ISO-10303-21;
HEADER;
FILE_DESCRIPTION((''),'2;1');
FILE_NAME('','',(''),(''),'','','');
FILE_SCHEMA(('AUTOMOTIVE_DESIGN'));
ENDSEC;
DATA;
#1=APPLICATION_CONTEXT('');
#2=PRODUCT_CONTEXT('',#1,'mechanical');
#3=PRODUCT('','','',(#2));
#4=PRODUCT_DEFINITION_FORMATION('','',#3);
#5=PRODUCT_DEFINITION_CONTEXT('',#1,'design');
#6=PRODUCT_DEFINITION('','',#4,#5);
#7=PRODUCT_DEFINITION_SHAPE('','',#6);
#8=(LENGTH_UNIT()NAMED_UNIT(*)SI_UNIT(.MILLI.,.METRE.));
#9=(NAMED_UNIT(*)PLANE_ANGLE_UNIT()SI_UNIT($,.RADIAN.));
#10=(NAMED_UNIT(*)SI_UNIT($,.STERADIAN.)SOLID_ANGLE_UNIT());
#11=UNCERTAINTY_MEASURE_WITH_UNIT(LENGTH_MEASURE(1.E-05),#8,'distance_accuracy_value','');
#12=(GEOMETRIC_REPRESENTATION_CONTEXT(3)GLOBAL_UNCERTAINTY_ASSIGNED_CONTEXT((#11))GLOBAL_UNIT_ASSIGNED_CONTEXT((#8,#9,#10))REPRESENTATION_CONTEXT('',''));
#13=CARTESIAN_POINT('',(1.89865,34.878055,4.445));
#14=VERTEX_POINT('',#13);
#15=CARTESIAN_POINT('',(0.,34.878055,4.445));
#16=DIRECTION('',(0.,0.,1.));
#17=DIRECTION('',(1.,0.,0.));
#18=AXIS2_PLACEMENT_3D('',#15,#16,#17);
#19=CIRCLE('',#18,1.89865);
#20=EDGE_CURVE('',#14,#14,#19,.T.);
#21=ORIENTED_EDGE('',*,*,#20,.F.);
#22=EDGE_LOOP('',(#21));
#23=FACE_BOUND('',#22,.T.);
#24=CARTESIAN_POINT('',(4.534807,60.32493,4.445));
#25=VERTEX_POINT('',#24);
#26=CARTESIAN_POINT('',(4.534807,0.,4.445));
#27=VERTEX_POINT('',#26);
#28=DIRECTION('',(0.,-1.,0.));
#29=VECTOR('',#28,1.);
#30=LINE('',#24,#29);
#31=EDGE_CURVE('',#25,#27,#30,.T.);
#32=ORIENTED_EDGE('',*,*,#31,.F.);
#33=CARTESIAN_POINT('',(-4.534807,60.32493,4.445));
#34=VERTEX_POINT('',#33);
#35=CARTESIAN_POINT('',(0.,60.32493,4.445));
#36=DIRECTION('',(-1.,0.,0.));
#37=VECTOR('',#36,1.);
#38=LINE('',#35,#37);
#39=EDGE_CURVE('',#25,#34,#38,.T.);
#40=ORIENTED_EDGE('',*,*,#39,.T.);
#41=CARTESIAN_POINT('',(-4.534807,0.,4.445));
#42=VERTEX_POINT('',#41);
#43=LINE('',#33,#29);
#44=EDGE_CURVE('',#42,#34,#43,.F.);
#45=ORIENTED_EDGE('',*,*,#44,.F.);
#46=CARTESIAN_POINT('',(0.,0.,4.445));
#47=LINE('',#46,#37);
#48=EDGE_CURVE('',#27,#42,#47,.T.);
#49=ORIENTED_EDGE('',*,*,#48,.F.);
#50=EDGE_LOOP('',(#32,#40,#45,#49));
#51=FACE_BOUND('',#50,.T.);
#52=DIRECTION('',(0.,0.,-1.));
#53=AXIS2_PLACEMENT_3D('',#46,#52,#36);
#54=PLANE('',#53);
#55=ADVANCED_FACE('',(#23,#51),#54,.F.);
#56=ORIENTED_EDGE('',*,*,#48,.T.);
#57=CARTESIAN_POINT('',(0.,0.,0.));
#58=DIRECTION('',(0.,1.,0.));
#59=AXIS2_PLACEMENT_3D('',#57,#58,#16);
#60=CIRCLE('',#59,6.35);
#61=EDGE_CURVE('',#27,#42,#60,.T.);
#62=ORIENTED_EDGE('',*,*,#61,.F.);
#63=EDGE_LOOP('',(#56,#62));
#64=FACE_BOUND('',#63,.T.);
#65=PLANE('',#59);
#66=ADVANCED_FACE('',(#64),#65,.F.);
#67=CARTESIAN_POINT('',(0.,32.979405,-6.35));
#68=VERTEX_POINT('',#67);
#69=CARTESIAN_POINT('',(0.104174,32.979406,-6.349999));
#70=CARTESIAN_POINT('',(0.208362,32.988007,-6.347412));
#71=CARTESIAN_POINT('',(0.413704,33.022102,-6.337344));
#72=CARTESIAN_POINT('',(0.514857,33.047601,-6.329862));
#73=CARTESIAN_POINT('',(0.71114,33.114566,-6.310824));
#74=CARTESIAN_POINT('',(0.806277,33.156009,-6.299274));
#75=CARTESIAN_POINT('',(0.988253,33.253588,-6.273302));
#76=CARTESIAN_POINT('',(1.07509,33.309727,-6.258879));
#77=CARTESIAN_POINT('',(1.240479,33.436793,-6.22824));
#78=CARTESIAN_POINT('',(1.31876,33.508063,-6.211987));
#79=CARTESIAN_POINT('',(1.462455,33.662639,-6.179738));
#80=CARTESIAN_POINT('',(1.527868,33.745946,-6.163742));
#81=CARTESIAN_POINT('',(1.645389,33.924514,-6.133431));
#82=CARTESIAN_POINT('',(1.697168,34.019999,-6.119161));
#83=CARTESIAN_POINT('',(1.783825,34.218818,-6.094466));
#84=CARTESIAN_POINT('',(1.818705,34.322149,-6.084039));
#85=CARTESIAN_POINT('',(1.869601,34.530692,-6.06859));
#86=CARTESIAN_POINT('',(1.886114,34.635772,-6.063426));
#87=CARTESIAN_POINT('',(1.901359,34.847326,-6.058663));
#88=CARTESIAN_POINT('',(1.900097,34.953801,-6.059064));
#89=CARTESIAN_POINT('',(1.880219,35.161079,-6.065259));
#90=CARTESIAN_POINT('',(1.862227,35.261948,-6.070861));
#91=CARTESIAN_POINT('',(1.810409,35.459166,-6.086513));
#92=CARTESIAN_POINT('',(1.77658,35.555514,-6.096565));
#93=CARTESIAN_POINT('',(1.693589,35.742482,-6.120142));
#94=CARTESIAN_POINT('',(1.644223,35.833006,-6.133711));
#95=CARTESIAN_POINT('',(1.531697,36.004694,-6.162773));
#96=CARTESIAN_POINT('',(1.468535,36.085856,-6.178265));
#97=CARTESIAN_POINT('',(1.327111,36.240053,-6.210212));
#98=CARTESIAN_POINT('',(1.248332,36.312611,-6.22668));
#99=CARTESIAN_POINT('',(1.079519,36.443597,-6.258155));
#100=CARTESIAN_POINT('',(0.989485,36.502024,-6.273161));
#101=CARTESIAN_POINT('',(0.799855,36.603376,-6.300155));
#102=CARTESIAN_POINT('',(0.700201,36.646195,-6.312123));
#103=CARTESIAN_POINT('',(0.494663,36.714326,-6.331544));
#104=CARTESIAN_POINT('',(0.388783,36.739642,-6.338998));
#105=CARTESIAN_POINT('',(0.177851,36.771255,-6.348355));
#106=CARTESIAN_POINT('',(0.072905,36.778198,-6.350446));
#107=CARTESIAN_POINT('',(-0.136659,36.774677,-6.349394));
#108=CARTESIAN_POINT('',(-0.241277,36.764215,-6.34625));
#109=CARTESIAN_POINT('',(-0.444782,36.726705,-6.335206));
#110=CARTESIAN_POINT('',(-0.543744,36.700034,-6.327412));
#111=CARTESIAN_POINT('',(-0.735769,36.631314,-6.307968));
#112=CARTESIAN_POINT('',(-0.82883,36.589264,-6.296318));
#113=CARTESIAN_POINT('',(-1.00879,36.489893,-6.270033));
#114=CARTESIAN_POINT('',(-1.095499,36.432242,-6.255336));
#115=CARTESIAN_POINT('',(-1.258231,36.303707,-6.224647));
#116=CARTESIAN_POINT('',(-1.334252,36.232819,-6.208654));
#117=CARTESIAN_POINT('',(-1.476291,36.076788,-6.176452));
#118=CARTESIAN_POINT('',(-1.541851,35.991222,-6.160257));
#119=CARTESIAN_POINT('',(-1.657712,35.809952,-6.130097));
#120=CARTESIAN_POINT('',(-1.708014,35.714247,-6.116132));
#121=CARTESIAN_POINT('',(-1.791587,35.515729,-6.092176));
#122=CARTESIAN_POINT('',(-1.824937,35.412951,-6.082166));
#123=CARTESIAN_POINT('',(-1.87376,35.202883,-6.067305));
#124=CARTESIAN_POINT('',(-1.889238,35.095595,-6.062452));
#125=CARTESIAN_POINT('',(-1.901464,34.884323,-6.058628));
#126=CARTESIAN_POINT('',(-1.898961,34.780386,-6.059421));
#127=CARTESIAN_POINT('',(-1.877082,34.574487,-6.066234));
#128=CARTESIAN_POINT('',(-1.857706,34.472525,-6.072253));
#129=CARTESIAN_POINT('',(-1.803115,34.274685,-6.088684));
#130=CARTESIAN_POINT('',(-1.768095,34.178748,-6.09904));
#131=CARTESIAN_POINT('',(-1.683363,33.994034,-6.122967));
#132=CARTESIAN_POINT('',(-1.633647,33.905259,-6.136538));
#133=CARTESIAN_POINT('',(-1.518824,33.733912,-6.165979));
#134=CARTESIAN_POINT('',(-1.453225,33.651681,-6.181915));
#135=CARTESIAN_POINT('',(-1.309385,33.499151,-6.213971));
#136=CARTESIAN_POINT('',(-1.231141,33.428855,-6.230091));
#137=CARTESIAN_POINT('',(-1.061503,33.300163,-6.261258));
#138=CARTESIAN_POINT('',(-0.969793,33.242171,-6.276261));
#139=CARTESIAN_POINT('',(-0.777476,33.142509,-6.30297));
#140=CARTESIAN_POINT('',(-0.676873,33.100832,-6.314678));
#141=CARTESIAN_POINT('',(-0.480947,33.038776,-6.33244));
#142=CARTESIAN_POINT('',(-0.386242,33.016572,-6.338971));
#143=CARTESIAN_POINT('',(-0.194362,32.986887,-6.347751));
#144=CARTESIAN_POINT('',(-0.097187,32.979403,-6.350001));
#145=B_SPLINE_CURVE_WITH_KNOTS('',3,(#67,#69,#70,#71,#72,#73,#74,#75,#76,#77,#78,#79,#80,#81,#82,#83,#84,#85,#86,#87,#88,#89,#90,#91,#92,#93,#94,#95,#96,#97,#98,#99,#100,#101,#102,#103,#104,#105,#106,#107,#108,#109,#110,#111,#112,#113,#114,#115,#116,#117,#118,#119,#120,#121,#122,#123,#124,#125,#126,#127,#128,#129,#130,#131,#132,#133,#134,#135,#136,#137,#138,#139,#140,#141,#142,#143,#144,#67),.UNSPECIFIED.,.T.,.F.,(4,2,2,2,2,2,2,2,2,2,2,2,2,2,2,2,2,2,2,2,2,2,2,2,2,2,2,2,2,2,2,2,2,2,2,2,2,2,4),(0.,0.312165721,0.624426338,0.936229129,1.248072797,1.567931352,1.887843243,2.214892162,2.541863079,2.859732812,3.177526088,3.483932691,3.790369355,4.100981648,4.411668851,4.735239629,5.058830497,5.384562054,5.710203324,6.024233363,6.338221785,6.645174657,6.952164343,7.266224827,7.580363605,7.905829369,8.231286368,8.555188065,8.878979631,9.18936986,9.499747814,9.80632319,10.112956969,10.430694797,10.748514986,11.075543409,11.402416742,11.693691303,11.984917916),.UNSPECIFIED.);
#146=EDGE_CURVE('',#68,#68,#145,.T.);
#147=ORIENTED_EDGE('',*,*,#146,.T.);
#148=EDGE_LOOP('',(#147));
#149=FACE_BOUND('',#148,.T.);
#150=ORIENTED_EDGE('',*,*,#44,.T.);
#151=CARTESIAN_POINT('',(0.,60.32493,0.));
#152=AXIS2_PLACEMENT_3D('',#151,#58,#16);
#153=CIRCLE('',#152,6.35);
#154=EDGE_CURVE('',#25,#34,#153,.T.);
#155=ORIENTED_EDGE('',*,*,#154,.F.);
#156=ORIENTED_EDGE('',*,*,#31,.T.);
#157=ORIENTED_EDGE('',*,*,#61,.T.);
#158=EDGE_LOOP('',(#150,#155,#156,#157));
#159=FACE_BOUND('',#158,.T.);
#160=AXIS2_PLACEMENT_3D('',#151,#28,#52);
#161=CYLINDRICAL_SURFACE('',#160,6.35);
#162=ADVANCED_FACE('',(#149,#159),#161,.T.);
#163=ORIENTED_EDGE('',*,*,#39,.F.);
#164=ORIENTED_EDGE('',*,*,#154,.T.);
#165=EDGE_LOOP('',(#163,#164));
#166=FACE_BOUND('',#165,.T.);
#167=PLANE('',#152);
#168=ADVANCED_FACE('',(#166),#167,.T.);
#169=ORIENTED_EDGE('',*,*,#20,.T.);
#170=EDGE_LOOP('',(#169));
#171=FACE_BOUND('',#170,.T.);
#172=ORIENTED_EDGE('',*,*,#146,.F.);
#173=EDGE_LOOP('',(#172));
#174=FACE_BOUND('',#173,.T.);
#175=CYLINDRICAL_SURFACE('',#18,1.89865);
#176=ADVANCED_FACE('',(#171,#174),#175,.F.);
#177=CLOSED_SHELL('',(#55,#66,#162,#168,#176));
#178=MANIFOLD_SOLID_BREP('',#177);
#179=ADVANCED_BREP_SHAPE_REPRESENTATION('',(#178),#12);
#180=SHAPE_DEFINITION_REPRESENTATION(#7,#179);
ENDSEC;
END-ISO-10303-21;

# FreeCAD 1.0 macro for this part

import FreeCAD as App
import Part
import Sketcher

V = App.Vector
Q = App.Units.Quantity


def add_polygon(sketch, points):
    """Adds a closed chain of lines whose ends are joined by coincident constraints."""
    first, n = sketch.GeometryCount, len(points)
    for a, b in zip(points, points[1:] + points[:1]):
        sketch.addGeometry(Part.LineSegment(App.Vector(*a, 0), App.Vector(*b, 0)), False)
    for i in range(n):
        sketch.addConstraint(Sketcher.Constraint("Coincident", first + i, 2, first + (i + 1) % n, 1))

doc = App.newDocument("Part")
body = doc.addObject("PartDesign::Body", "Body")

# Sketch on XZ plane
sketch1 = body.newObject("Sketcher::SketchObject", "Sketch")
sketch1.AttachmentSupport = (doc.getObject("XZ_Plane"), [""])
sketch1.MapMode = "FlatFace"
sketch1.addGeometry(Part.Circle(V(0, 0, 0), V(0, 0, 1), 6), False)
sketch1.addConstraint([
    Sketcher.Constraint("Coincident", 0, 3, -1, 1),
    Sketcher.Constraint("Diameter", 0, Q("0.5 in")),
])
pad1 = body.newObject("PartDesign::Pad", "Pad")
pad1.Profile = sketch1
pad1.Length = 60.32493
pad1.Reversed = True

# Sketch on XZ plane
sketch2 = body.newObject("Sketcher::SketchObject", "Sketch001")
sketch2.AttachmentSupport = (doc.getObject("XZ_Plane"), [""])
sketch2.MapMode = "FlatFace"
sketch2.AttachmentOffset = App.Placement(V(0, 0, -60.32493), App.Rotation())
add_polygon(sketch2, [(-5.7, 4.4), (-5.7, 6.9), (5.9, 6.9), (5.9, 4.4)])  # lines 0-3
sketch2.addConstraint([
    Sketcher.Constraint("Vertical", 0),
    Sketcher.Constraint("Horizontal", 1),
    Sketcher.Constraint("Vertical", 2),
    Sketcher.Constraint("Horizontal", 3),
    Sketcher.Constraint("DistanceY", -1, 1, 2, 2, Q("0.175 in")),
    Sketcher.Constraint("DistanceX", 1, 1, 1, 2, 11.563138),
    Sketcher.Constraint("DistanceY", 0, 1, 0, 2, 2.405475),
    Sketcher.Constraint("DistanceX", 0, 2, -1, 1, 5.655196),
])
pocket1 = body.newObject("PartDesign::Pocket", "Pocket")
pocket1.Profile = sketch2
pocket1.Type = "ThroughAll"
pocket1.Reversed = True

# Sketch on XY plane
sketch3 = body.newObject("Sketcher::SketchObject", "Sketch002")
sketch3.AttachmentSupport = (doc.getObject("XY_Plane"), [""])
sketch3.MapMode = "FlatFace"
sketch3.AttachmentOffset = App.Placement(V(0, 0, 0.175 * 25.4), App.Rotation())
sketch3.addGeometry(Part.Circle(V(0, 34.9, 0), V(0, 0, 1), 1.9), False)
sketch3.addConstraint([
    Sketcher.Constraint("PointOnObject", 0, 3, -2),
    Sketcher.Constraint("Diameter", 0, Q("0.1495 in")),
    Sketcher.Constraint("DistanceY", -1, 1, 0, 3, 34.878055),
])
doc.recompute()
hole = body.newObject("PartDesign::Hole", "Hole")
hole.Profile = sketch3
hole.ThreadType = "None"
hole.Diameter = Q("0.1495 in")
hole.DepthType = "ThroughAll"

doc.recompute()
